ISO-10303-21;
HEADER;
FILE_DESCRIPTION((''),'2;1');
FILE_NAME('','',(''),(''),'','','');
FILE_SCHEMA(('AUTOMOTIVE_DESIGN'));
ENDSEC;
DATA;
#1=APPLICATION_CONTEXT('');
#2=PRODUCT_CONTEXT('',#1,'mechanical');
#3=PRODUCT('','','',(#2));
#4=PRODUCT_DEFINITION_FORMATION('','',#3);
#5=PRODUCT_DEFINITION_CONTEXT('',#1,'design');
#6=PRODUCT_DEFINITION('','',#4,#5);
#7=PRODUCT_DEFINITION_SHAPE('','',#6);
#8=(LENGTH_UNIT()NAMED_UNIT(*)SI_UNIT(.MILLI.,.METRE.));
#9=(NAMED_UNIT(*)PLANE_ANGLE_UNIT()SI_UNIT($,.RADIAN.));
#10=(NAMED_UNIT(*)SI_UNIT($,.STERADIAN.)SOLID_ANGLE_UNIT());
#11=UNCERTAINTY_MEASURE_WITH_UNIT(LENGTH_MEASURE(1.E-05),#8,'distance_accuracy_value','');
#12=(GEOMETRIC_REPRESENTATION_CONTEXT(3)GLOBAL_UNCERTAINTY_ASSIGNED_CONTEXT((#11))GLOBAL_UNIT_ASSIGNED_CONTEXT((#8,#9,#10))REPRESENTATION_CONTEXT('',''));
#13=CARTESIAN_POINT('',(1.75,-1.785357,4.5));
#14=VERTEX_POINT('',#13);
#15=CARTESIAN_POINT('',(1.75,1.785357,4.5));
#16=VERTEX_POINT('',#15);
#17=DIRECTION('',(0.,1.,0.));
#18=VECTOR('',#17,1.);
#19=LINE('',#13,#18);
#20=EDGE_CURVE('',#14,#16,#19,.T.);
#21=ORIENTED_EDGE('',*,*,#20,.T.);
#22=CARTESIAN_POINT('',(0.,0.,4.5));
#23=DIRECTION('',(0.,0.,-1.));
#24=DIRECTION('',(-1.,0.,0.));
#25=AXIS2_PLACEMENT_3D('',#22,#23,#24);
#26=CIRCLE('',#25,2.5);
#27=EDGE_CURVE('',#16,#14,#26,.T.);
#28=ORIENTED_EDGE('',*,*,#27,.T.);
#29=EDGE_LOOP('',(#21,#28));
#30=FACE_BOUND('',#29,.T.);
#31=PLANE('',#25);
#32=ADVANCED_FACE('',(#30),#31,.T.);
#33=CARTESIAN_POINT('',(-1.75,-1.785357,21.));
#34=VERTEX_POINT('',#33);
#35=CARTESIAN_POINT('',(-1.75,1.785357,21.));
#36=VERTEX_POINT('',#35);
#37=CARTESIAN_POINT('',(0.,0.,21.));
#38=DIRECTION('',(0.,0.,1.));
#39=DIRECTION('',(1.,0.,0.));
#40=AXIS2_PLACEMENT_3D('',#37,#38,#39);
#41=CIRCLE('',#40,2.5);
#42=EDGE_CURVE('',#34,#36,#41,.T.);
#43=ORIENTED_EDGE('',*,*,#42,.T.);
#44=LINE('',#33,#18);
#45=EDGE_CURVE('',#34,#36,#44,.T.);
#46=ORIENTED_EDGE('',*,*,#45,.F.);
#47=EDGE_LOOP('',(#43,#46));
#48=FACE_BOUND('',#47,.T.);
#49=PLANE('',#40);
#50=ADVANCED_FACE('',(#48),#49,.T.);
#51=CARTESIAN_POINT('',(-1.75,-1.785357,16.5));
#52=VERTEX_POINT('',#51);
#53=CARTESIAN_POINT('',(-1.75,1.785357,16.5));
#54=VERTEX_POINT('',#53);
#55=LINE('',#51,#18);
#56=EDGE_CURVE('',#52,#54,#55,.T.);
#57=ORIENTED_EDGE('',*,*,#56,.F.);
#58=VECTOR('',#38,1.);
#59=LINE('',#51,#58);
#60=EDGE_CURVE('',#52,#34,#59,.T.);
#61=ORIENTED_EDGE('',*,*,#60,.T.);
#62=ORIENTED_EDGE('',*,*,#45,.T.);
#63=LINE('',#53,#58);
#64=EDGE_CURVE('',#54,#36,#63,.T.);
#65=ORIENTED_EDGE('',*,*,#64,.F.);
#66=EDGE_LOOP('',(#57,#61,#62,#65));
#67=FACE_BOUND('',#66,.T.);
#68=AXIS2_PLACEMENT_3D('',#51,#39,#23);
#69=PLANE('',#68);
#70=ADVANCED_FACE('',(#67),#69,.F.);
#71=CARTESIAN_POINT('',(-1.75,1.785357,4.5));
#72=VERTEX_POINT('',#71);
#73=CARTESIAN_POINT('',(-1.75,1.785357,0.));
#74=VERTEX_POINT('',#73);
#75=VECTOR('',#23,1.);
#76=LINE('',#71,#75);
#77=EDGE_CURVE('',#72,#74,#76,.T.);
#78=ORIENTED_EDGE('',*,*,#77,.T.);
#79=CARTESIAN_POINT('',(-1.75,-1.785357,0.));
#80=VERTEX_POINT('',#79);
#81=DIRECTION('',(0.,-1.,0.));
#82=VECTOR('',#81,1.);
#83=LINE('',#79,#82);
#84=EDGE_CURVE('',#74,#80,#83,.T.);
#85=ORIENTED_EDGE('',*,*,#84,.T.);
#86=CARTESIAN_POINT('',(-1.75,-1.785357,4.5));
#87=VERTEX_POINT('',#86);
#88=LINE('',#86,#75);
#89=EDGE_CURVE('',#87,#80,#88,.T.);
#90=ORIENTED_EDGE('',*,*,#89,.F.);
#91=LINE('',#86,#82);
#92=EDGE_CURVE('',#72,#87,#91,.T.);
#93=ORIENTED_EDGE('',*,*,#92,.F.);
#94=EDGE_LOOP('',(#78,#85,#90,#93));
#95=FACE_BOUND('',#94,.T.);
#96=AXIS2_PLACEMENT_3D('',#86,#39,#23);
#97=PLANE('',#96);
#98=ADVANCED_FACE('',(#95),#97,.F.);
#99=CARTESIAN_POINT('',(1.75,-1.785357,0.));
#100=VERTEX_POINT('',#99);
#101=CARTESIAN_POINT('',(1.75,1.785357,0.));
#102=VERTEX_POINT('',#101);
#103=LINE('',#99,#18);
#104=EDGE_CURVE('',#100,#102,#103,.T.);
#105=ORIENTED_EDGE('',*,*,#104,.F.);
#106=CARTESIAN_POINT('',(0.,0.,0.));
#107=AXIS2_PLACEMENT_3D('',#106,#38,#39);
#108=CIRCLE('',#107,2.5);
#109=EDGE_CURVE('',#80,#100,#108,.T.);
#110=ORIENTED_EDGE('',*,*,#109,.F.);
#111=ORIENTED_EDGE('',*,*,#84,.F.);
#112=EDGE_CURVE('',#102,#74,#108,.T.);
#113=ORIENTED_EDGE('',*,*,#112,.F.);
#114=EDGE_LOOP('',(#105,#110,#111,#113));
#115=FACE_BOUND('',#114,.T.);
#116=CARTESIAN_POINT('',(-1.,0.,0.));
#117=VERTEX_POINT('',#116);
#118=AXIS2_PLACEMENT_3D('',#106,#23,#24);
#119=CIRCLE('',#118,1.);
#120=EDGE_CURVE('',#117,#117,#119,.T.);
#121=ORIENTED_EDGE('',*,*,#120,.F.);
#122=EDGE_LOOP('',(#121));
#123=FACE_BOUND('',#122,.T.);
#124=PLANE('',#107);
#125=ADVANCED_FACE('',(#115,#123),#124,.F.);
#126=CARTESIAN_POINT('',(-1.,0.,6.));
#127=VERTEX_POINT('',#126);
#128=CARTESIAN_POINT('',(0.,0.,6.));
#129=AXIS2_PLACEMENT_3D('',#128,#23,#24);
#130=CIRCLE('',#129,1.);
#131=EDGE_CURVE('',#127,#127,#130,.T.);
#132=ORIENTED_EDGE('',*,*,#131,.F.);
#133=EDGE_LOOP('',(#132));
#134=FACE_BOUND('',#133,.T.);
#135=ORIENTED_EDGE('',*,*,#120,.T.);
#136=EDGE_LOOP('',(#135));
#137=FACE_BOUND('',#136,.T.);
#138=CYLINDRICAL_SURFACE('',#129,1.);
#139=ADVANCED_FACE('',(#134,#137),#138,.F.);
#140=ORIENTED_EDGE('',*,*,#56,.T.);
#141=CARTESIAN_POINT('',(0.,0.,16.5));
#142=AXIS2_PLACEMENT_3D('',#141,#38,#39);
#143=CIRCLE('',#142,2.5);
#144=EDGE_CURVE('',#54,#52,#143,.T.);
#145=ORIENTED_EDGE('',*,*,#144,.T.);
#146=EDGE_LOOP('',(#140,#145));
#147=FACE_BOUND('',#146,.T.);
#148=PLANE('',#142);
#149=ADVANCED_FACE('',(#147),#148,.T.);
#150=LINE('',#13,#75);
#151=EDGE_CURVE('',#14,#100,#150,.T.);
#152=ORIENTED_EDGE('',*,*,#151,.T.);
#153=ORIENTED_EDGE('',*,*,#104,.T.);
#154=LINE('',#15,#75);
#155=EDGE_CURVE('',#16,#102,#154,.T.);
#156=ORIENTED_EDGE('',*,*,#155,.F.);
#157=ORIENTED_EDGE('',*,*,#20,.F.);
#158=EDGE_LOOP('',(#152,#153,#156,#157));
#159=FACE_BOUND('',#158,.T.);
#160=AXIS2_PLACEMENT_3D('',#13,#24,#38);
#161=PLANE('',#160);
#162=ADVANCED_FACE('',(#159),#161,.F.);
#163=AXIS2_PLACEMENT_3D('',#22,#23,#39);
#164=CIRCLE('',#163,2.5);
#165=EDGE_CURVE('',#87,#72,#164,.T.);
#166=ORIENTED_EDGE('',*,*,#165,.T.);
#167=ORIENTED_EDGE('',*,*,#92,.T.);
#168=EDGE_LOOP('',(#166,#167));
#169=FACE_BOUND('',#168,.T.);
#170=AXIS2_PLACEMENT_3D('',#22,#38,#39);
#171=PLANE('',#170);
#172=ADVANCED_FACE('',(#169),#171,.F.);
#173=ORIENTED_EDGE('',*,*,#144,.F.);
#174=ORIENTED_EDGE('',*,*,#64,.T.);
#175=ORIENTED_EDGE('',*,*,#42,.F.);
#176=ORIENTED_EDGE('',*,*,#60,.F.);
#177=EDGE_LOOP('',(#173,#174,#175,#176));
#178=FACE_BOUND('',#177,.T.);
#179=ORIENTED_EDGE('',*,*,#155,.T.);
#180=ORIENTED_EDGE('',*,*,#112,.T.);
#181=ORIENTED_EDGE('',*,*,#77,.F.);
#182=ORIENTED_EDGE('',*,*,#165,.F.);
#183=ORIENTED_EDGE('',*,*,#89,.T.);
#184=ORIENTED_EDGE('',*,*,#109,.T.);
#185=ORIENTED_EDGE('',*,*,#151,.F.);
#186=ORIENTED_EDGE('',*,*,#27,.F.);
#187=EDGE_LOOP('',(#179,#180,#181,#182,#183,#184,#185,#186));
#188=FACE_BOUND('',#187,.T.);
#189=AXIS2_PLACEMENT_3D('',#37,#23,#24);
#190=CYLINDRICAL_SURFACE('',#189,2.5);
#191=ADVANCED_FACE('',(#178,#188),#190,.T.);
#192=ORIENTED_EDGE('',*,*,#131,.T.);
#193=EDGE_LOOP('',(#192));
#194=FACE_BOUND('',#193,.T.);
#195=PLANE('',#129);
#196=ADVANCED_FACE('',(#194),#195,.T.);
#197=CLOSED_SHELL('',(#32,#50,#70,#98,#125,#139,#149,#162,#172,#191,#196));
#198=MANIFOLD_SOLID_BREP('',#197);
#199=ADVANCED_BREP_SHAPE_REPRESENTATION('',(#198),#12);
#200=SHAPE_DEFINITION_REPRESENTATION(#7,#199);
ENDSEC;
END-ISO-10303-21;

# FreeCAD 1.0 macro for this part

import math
import FreeCAD as App
import Part
import Sketcher
from FreeCAD import Vector
Q = App.Units.Quantity

doc = App.newDocument("Part")
body = doc.addObject("PartDesign::Body", "Body")

sketch1 = body.newObject("Sketcher::SketchObject", "Sketch")
sketch1.AttachmentSupport = (doc.getObject("XY_Plane"), [""])
sketch1.MapMode = "FlatFace"
sketch1.addGeometry(Part.Circle(Vector(0, 0, 0), Vector(0, 0, 1), 2.5), False)
sketch1.addConstraint(Sketcher.Constraint("Coincident", 0, 3, -1, 1))
sketch1.addConstraint(Sketcher.Constraint("Diameter", 0, Q("5 mm")))
pad1 = body.newObject("PartDesign::Pad", "Pad")
pad1.Profile = sketch1
pad1.Length = 21

sketch2 = body.newObject("Sketcher::SketchObject", "Sketch001")
sketch2.AttachmentSupport = (doc.getObject("XY_Plane"), [""])
sketch2.MapMode = "FlatFace"
sketch2.addGeometry(Part.LineSegment(Vector(1.8, -1.8, 0), Vector(1.8, 1.8, 0)), False)
sketch2.addGeometry(Part.ArcOfCircle(Part.Circle(Vector(0, 0, 0), Vector(0, 0, 1), 2.5), math.radians(-46), math.radians(46)), False)
sketch2.addGeometry(Part.LineSegment(Vector(-1.8, 1.8, 0), Vector(-1.8, -1.8, 0)), False)
sketch2.addGeometry(Part.ArcOfCircle(Part.Circle(Vector(0, 0, 0), Vector(0, 0, 1), 2.5), math.radians(134), math.radians(226)), False)
sketch2.addConstraint(Sketcher.Constraint("Coincident", 0, 1, 1, 1))
sketch2.addConstraint(Sketcher.Constraint("Coincident", 1, 2, 0, 2))
sketch2.addConstraint(Sketcher.Constraint("Coincident", 2, 1, 3, 1))
sketch2.addConstraint(Sketcher.Constraint("Coincident", 3, 2, 2, 2))
sketch2.addConstraint(Sketcher.Constraint("Vertical", 0))
sketch2.addConstraint(Sketcher.Constraint("Vertical", 2))
sketch2.addConstraint(Sketcher.Constraint("Coincident", 1, 3, -1, 1))
sketch2.addConstraint(Sketcher.Constraint("Coincident", 3, 3, -1, 1))
sketch2.addConstraint(Sketcher.Constraint("Equal", 1, 3))
sketch2.addConstraint(Sketcher.Constraint("Horizontal", 1, 2, 2, 1))
sketch2.addConstraint(Sketcher.Constraint("Radius", 1, Q("2.5 mm")))
sketch2.addConstraint(Sketcher.Constraint("DistanceX", 2, 1, 1, 2, Q("3.5 mm")))
pocket1 = body.newObject("PartDesign::Pocket", "Pocket")
pocket1.Profile = sketch2
pocket1.Length = 4.5
pocket1.Reversed = True

sketch3 = body.newObject("Sketcher::SketchObject", "Sketch002")
sketch3.AttachmentSupport = (doc.getObject("XY_Plane"), [""])
sketch3.MapMode = "FlatFace"
sketch3.addGeometry(Part.Circle(Vector(0, 0, 0), Vector(0, 0, 1), 1), False)
sketch3.addConstraint(Sketcher.Constraint("Coincident", 0, 3, -1, 1))
sketch3.addConstraint(Sketcher.Constraint("Diameter", 0, Q("2 mm")))
pocket2 = body.newObject("PartDesign::Pocket", "Pocket001")
pocket2.Profile = sketch3
pocket2.Length = 6
pocket2.Reversed = True

sketch4 = body.newObject("Sketcher::SketchObject", "Sketch003")
sketch4.AttachmentSupport = (doc.getObject("XY_Plane"), [""])
sketch4.MapMode = "FlatFace"
sketch4.AttachmentOffset = App.Placement(Vector(0, 0, 16.5), App.Rotation())
sketch4.addGeometry(Part.LineSegment(Vector(-1.8, -1.8, 0), Vector(-1.8, 1.8, 0)), False)
sketch4.addGeometry(Part.ArcOfCircle(Part.Circle(Vector(0, 0, 0), Vector(0, 0, 1), 2.5), math.radians(134), math.radians(226)), False)
sketch4.addConstraint(Sketcher.Constraint("Coincident", 0, 1, 1, 2))
sketch4.addConstraint(Sketcher.Constraint("Coincident", 1, 1, 0, 2))
sketch4.addConstraint(Sketcher.Constraint("Vertical", 0))
sketch4.addConstraint(Sketcher.Constraint("Coincident", 1, 3, -1, 1))
sketch4.addConstraint(Sketcher.Constraint("Radius", 1, Q("2.5 mm")))
sketch4.addConstraint(Sketcher.Constraint("DistanceX", 0, 1, -1, 1, Q("1.75 mm")))
pocket3 = body.newObject("PartDesign::Pocket", "Pocket002")
pocket3.Profile = sketch4
pocket3.Length = 4.5
pocket3.Reversed = True

doc.recompute()
